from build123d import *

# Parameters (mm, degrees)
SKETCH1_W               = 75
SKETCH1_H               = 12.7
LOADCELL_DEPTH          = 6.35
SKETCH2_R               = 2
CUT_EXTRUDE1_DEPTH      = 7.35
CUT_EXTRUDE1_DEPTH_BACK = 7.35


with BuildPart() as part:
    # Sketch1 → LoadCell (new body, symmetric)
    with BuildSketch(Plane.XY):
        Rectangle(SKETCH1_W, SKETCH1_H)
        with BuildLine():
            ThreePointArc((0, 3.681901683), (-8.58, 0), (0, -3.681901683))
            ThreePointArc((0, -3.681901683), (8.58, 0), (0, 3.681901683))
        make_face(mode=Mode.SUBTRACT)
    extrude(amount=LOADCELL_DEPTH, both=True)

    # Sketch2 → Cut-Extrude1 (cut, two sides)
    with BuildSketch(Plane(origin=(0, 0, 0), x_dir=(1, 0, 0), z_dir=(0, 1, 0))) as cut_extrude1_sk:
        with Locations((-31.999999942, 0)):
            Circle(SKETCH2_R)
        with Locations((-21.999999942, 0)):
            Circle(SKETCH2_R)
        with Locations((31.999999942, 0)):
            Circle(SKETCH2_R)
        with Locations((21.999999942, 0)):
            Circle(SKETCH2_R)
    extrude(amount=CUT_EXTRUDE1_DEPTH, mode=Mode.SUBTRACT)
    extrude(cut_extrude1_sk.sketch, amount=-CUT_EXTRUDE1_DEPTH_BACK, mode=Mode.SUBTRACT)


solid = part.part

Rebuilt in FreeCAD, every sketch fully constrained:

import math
import FreeCAD as App
import Part
import Sketcher

V = App.Vector
Q = App.Units.Quantity


def add_polygon(sketch, points):
    """Adds a closed chain of lines whose ends are joined by coincident constraints."""
    first, n = sketch.GeometryCount, len(points)
    for a, b in zip(points, points[1:] + points[:1]):
        sketch.addGeometry(Part.LineSegment(App.Vector(*a, 0), App.Vector(*b, 0)), False)
    for i in range(n):
        sketch.addConstraint(Sketcher.Constraint("Coincident", first + i, 2, first + (i + 1) % n, 1))

doc = App.newDocument("Part")
body = doc.addObject("PartDesign::Body", "Body")

# Sketch on XY plane
sketch1 = doc.addObject("Sketcher::SketchObject", "Sketch")
body.addObject(sketch1)
sketch1.AttachmentSupport = (doc.XY_Plane, [""])
sketch1.MapMode = "FlatFace"
add_polygon(sketch1, [(-38, 6), (-38, -6), (38, -6), (38, 6)])  # lines 0-3
sketch1.addGeometry(Part.ArcOfCircle(Part.Circle(V(-4, 0, 0), V(0, 0, 1), 5), math.radians(46), math.radians(314)), False)  # 4
sketch1.addGeometry(Part.ArcOfCircle(Part.Circle(V(4, 0, 0), V(0, 0, 1), 5), math.radians(-134), math.radians(134)), False)  # 5
sketch1.addConstraint(Sketcher.Constraint("Coincident", 4, 1, 5, 2))
sketch1.addConstraint(Sketcher.Constraint("Coincident", 5, 1, 4, 2))
sketch1.addConstraint(Sketcher.Constraint("Vertical", 0))
sketch1.addConstraint(Sketcher.Constraint("Horizontal", 1))
sketch1.addConstraint(Sketcher.Constraint("Vertical", 2))
sketch1.addConstraint(Sketcher.Constraint("Horizontal", 3))
sketch1.addConstraint(Sketcher.Constraint("Equal", 4, 5))
sketch1.addConstraint(Sketcher.Constraint("Symmetric", 4, 3, 5, 3, -1, 1))
sketch1.addConstraint(Sketcher.Constraint("Symmetric", 0, 2, 2, 2, -1, 1))
sketch1.addConstraint(Sketcher.Constraint("PointOnObject", 4, 3, -1))
sketch1.addConstraint(Sketcher.Constraint("Radius", 4, Q("0.2 in")))
sketch1.addConstraint(Sketcher.Constraint("DistanceY", 0, 2, 0, 1, Q("0.5 in")))
sketch1.addConstraint(Sketcher.Constraint("DistanceX", 1, 1, 1, 2, Q("75 mm")))
sketch1.addConstraint(Sketcher.Constraint("DistanceX", 4, 3, -1, 1, Q("3.5 mm")))
pad1 = doc.addObject("PartDesign::Pad", "Pad")
body.addObject(pad1)
pad1.Profile = sketch1
pad1.Length = Q("0.5 in")
pad1.Midplane = True

# Sketch on XZ plane
sketch2 = doc.addObject("Sketcher::SketchObject", "Sketch001")
body.addObject(sketch2)
sketch2.AttachmentSupport = (doc.XZ_Plane, [""])
sketch2.MapMode = "FlatFace"
sketch2.addGeometry(Part.Circle(V(-32, 0, 0), V(0, 0, 1), 2), False)
sketch2.addGeometry(Part.Circle(V(-22, 0, 0), V(0, 0, 1), 2), False)
sketch2.addGeometry(Part.Circle(V(32, 0, 0), V(0, 0, 1), 2), False)
sketch2.addGeometry(Part.Circle(V(22, 0, 0), V(0, 0, 1), 2), False)
sketch2.addConstraint(Sketcher.Constraint("Equal", 0, 1))
sketch2.addConstraint(Sketcher.Constraint("Equal", 1, 2))
sketch2.addConstraint(Sketcher.Constraint("Equal", 2, 3))
sketch2.addConstraint(Sketcher.Constraint("Symmetric", 0, 3, 2, 3, -1, 1))
sketch2.addConstraint(Sketcher.Constraint("Symmetric", 1, 3, 3, 3, -1, 1))
sketch2.addConstraint(Sketcher.Constraint("PointOnObject", 0, 3, -1))
sketch2.addConstraint(Sketcher.Constraint("PointOnObject", 1, 3, -1))
sketch2.addConstraint(Sketcher.Constraint("Diameter", 0, Q("4 mm")))
sketch2.addConstraint(Sketcher.Constraint("DistanceX", 0, 3, -1, 1, Q("32 mm")))
sketch2.addConstraint(Sketcher.Constraint("DistanceX", 1, 3, -1, 1, Q("22 mm")))
pocket1 = doc.addObject("PartDesign::Pocket", "Pocket")
body.addObject(pocket1)
pocket1.Profile = sketch2
pocket1.Type = "ThroughAll"
pocket1.Midplane = True

doc.recompute()
